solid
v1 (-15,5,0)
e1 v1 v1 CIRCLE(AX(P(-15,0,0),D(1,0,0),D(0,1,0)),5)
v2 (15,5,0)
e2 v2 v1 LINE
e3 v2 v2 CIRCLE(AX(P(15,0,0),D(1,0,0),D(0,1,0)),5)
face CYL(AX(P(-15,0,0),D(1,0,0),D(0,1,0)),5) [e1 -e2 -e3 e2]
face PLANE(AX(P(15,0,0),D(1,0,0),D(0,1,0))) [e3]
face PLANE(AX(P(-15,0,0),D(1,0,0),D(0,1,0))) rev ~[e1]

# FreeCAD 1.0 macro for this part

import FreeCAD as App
import Part
import Sketcher
from FreeCAD import Vector

doc = App.newDocument("Part")
params = doc.addObject("Spreadsheet::Sheet", "Params")
for row, (alias, value) in enumerate([
    ("sketch1_width", "30 mm"),
    ("sketch1_height", "5 mm"),
    ("revolution_angle", "360 deg"),
], start=1):
    params.set(f"A{row}", alias)
    params.set(f"B{row}", "=" + value)
    params.setAlias(f"B{row}", alias)

body = doc.addObject("PartDesign::Body", "Body")

# Sketch on XY plane
sketch1 = doc.addObject("Sketcher::SketchObject", "Sketch")
body.addObject(sketch1)
sketch1.AttachmentSupport = (doc.XY_Plane, [""])
sketch1.MapMode = "FlatFace"
sketch1.addGeometry([
    Part.LineSegment(Vector(15, 0, 0), Vector(15, 5, 0)),
    Part.LineSegment(Vector(15, 5, 0), Vector(-15, 5, 0)),
    Part.LineSegment(Vector(-15, 5, 0), Vector(-15, 0, 0)),
    Part.LineSegment(Vector(-15, 0, 0), Vector(15, 0, 0)),
], False)
sketch1.addConstraint([
    Sketcher.Constraint("Coincident", 0, 2, 1, 1),
    Sketcher.Constraint("Coincident", 1, 2, 2, 1),
    Sketcher.Constraint("Coincident", 2, 2, 3, 1),
    Sketcher.Constraint("Coincident", 3, 2, 0, 1),
    Sketcher.Constraint("Vertical", 0),
    Sketcher.Constraint("Horizontal", 1),
    Sketcher.Constraint("Vertical", 2),
    Sketcher.Constraint("Horizontal", 3),
    Sketcher.Constraint("Symmetric", 2, 2, 3, 2, -1, 1),
    Sketcher.Constraint("DistanceX", 1, 2, 1, 1, 30.0),
    Sketcher.Constraint("DistanceY", 0, 1, 0, 2, 5.0),
])
sketch1.setExpression("Constraints[9]", "Params.sketch1_width")
sketch1.setExpression("Constraints[10]", "Params.sketch1_height")
revolution = doc.addObject("PartDesign::Revolution", "Revolution")
body.addObject(revolution)
revolution.Profile = sketch1
revolution.ReferenceAxis = (sketch1, ["H_Axis"])
revolution.setExpression("Angle", "Params.revolution_angle")

doc.recompute()
